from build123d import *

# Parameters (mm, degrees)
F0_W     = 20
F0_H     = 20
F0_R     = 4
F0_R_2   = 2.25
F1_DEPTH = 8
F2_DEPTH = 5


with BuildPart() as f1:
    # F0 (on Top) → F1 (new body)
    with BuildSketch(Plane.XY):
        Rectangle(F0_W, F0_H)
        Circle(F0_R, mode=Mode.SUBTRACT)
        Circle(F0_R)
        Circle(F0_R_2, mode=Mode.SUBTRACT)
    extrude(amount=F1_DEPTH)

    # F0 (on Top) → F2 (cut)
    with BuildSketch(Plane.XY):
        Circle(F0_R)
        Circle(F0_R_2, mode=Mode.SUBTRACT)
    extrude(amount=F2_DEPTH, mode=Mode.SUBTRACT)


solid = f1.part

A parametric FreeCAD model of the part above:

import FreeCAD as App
import Part
import Sketcher
Q = App.Units.Quantity


def add_polygon(sketch, points):
    """Adds a closed chain of lines whose ends are joined by coincident constraints."""
    first, n = sketch.GeometryCount, len(points)
    for a, b in zip(points, points[1:] + points[:1]):
        sketch.addGeometry(Part.LineSegment(App.Vector(*a, 0), App.Vector(*b, 0)), False)
    for i in range(n):
        sketch.addConstraint(Sketcher.Constraint("Coincident", first + i, 2, first + (i + 1) % n, 1))

doc = App.newDocument("Part")
body = doc.addObject("PartDesign::Body", "Body")

# Sketch on XY plane
sketch1 = doc.addObject("Sketcher::SketchObject", "Sketch")
body.addObject(sketch1)
sketch1.AttachmentSupport = (doc.XY_Plane, [""])
sketch1.MapMode = "FlatFace"
add_polygon(sketch1, [(-10, 10), (-10, -10), (10, -10), (10, 10)])  # lines 0-3
sketch1.addGeometry(Part.Circle(App.Vector(0, 0, 0), App.Vector(0, 0, 1), 2.2), False)  # 4
sketch1.addConstraint(Sketcher.Constraint("Vertical", 0))
sketch1.addConstraint(Sketcher.Constraint("Horizontal", 1))
sketch1.addConstraint(Sketcher.Constraint("Vertical", 2))
sketch1.addConstraint(Sketcher.Constraint("Horizontal", 3))
sketch1.addConstraint(Sketcher.Constraint("Coincident", 4, 3, -1, 1))
sketch1.addConstraint(Sketcher.Constraint("Symmetric", 0, 2, 2, 2, -1, 1))
sketch1.addConstraint(Sketcher.Constraint("Equal", 3, 0))
sketch1.addConstraint(Sketcher.Constraint("Diameter", 4, Q("4.5 mm")))
sketch1.addConstraint(Sketcher.Constraint("DistanceX", 1, 1, 1, 2, Q("20 mm")))
pad1 = doc.addObject("PartDesign::Pad", "Pad")
body.addObject(pad1)
pad1.Profile = sketch1
pad1.Length = 8

# Sketch on XY plane
sketch2 = doc.addObject("Sketcher::SketchObject", "Sketch001")
body.addObject(sketch2)
sketch2.AttachmentSupport = (doc.XY_Plane, [""])
sketch2.MapMode = "FlatFace"
sketch2.addGeometry(Part.Circle(App.Vector(0, 0, 0), App.Vector(0, 0, 1), 4), False)
sketch2.addGeometry(Part.Circle(App.Vector(0, 0, 0), App.Vector(0, 0, 1), 2.2), False)
sketch2.addConstraint(Sketcher.Constraint("Coincident", 0, 3, -1, 1))
sketch2.addConstraint(Sketcher.Constraint("Coincident", 1, 3, -1, 1))
sketch2.addConstraint(Sketcher.Constraint("Diameter", 0, Q("8 mm")))
sketch2.addConstraint(Sketcher.Constraint("Diameter", 1, Q("4.5 mm")))
pocket1 = doc.addObject("PartDesign::Pocket", "Pocket")
body.addObject(pocket1)
pocket1.Profile = sketch2
pocket1.Length = 5
pocket1.Reversed = True

doc.recompute()
